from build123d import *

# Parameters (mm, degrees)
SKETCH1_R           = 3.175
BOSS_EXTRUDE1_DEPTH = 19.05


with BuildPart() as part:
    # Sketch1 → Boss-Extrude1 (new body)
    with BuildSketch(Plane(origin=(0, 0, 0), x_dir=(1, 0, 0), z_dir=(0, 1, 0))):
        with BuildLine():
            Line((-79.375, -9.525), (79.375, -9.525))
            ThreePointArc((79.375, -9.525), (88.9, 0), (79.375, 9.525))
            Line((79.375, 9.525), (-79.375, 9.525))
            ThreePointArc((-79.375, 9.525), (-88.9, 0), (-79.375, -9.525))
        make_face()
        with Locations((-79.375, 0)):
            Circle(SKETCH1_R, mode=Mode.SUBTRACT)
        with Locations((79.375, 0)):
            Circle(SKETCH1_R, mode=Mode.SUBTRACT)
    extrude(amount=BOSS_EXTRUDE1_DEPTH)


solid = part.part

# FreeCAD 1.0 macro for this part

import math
import FreeCAD as App
import Part
import Sketcher
Q = App.Units.Quantity

doc = App.newDocument("Part")
body = doc.addObject("PartDesign::Body", "Body")

sketch1 = doc.addObject("Sketcher::SketchObject", "Sketch")
body.addObject(sketch1)
sketch1.AttachmentSupport = (doc.XZ_Plane, [""])
sketch1.MapMode = "FlatFace"
sketch1.addGeometry(Part.LineSegment(App.Vector(-79.4, 9.5, 0), App.Vector(79.4, 9.5, 0)), False)
sketch1.addGeometry(Part.ArcOfCircle(Part.Circle(App.Vector(79.4, 0, 0), App.Vector(0, 0, 1), 9.5), math.radians(-90), math.radians(90)), False)
sketch1.addGeometry(Part.LineSegment(App.Vector(79.4, -9.5, 0), App.Vector(-79.4, -9.5, 0)), False)
sketch1.addGeometry(Part.ArcOfCircle(Part.Circle(App.Vector(-79.4, 0, 0), App.Vector(0, 0, 1), 9.5), math.radians(90), math.radians(270)), False)
sketch1.addGeometry(Part.Circle(App.Vector(-79.4, 0, 0), App.Vector(0, 0, 1), 3.2), False)
sketch1.addGeometry(Part.Circle(App.Vector(79.4, 0, 0), App.Vector(0, 0, 1), 3.2), False)
sketch1.addConstraint(Sketcher.Constraint("Tangent", 0, 2, 1, 2))
sketch1.addConstraint(Sketcher.Constraint("Tangent", 1, 1, 2, 1))
sketch1.addConstraint(Sketcher.Constraint("Tangent", 2, 2, 3, 2))
sketch1.addConstraint(Sketcher.Constraint("Tangent", 3, 1, 0, 1))
sketch1.addConstraint(Sketcher.Constraint("Horizontal", 0))
sketch1.addConstraint(Sketcher.Constraint("Horizontal", 2))
sketch1.addConstraint(Sketcher.Constraint("Coincident", 4, 3, 3, 3))
sketch1.addConstraint(Sketcher.Constraint("Coincident", 5, 3, 1, 3))
sketch1.addConstraint(Sketcher.Constraint("Equal", 4, 5))
sketch1.addConstraint(Sketcher.Constraint("Symmetric", 1, 3, 3, 3, -1, 1))
sketch1.addConstraint(Sketcher.Constraint("Diameter", 4, Q("0.25 in")))
sketch1.addConstraint(Sketcher.Constraint("Radius", 1, Q("0.375 in")))
sketch1.addConstraint(Sketcher.Constraint("DistanceX", 0, 1, 0, 2, Q("6.25 in")))
pad1 = doc.addObject("PartDesign::Pad", "Pad")
body.addObject(pad1)
pad1.Profile = sketch1
pad1.Length = Q("0.75 in")
pad1.Reversed = True

doc.recompute()
